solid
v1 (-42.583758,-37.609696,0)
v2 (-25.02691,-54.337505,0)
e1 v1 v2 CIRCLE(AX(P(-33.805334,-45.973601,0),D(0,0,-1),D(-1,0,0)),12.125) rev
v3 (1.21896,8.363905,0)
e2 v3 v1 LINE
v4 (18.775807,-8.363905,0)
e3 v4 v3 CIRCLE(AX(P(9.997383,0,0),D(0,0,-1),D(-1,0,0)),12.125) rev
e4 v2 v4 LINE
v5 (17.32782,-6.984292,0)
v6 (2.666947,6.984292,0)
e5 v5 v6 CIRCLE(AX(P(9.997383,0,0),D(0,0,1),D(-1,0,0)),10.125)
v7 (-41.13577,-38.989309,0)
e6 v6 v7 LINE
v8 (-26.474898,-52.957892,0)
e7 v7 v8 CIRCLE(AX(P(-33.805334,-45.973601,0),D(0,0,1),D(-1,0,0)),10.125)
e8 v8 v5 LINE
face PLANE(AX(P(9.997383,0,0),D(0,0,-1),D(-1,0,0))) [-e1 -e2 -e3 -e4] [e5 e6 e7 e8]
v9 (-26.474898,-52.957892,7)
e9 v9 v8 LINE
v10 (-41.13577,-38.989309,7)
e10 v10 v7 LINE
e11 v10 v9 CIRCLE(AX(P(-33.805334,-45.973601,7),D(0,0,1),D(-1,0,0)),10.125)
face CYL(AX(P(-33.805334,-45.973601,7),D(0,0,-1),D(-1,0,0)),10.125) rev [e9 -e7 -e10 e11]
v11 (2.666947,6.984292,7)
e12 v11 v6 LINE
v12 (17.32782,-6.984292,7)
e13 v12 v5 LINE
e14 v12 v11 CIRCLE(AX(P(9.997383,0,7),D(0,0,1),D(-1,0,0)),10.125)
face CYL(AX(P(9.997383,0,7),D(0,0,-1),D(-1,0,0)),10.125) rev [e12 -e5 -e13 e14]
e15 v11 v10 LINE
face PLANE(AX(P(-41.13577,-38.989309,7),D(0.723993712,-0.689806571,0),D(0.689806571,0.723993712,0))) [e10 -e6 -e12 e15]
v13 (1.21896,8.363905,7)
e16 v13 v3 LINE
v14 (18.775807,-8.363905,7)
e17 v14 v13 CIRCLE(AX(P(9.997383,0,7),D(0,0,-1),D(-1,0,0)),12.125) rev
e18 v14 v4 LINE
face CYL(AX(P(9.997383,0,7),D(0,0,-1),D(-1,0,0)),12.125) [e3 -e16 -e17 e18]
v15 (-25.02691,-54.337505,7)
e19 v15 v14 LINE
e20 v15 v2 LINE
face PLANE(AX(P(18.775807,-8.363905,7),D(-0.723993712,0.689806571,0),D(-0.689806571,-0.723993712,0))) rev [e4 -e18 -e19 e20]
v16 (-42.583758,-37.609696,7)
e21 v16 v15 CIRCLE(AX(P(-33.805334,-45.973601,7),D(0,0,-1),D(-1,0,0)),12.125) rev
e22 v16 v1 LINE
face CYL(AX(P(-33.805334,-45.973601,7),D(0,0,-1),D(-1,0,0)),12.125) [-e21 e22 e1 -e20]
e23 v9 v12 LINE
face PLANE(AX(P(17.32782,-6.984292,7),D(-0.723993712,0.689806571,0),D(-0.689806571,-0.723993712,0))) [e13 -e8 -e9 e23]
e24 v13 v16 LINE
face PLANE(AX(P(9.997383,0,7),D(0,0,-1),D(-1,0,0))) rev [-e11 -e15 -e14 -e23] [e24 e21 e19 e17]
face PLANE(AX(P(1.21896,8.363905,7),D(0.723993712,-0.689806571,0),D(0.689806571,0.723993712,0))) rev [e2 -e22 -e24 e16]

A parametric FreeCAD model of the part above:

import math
import FreeCAD as App
import Part
import Sketcher
from FreeCAD import Vector

doc = App.newDocument("Part")
body = doc.addObject("PartDesign::Body", "Body")

# Sketch on XY plane
sketch1 = body.newObject("Sketcher::SketchObject", "Sketch")
sketch1.AttachmentSupport = (doc.getObject("XY_Plane"), [""])
sketch1.MapMode = "FlatFace"
sketch1.addGeometry([
    Part.LineSegment(Vector(1.21896, 8.363905, 0), Vector(-42.583758, -37.609696, 0)),  # 0
    Part.ArcOfCircle(Part.Circle(Vector(-33.805334, -45.973601, 0), Vector(0, 0, 1), 12.125), math.radians(136.385201), math.radians(316.385201)),  # 1
    Part.LineSegment(Vector(-25.02691, -54.337505, 0), Vector(18.775807, -8.363905, 0)),  # 2
    Part.ArcOfCircle(Part.Circle(Vector(9.997383, 0, 0), Vector(0, 0, 1), 12.125), math.radians(-43.614799), math.radians(136.385201)),  # 3
    Part.LineSegment(Vector(-41.13577, -38.989309, 0), Vector(2.666947, 6.984292, 0)),  # 4
    Part.ArcOfCircle(Part.Circle(Vector(9.997383, 0, 0), Vector(0, 0, 1), 10.125), math.radians(-43.614799), math.radians(136.385201)),  # 5
    Part.LineSegment(Vector(17.32782, -6.984292, 0), Vector(-26.474898, -52.957892, 0)),  # 6
    Part.ArcOfCircle(Part.Circle(Vector(-33.805334, -45.973601, 0), Vector(0, 0, 1), 10.125), math.radians(136.385201), math.radians(316.385201)),  # 7
], False)
sketch1.addConstraint([
    Sketcher.Constraint("Tangent", 0, 2, 1, 1),
    Sketcher.Constraint("Tangent", 1, 2, 2, 1),
    Sketcher.Constraint("Tangent", 2, 2, 3, 1),
    Sketcher.Constraint("Tangent", 3, 2, 0, 1),
    Sketcher.Constraint("Tangent", 4, 2, 5, 2),
    Sketcher.Constraint("Tangent", 5, 1, 6, 1),
    Sketcher.Constraint("Tangent", 6, 2, 7, 2),
    Sketcher.Constraint("Tangent", 7, 1, 4, 1),
    Sketcher.Constraint("Coincident", 5, 3, 3, 3),
    Sketcher.Constraint("Coincident", 7, 3, 1, 3),
    Sketcher.Constraint("Equal", 1, 3),
    Sketcher.Constraint("Equal", 5, 7),
    Sketcher.Constraint("PointOnObject", 3, 3, -1),
    Sketcher.Constraint("Radius", 1, 12.125),
    Sketcher.Constraint("Radius", 5, 10.125),
    Sketcher.Constraint("Distance", 0, 63.5),
    Sketcher.Constraint("DistanceY", 1, 3, -1, 1, 45.973601),
    Sketcher.Constraint("DistanceX", 1, 2, -1, 1, 25.02691),
])
pad1 = body.newObject("PartDesign::Pad", "Pad")
pad1.Profile = sketch1
pad1.Length = 7

doc.recompute()
